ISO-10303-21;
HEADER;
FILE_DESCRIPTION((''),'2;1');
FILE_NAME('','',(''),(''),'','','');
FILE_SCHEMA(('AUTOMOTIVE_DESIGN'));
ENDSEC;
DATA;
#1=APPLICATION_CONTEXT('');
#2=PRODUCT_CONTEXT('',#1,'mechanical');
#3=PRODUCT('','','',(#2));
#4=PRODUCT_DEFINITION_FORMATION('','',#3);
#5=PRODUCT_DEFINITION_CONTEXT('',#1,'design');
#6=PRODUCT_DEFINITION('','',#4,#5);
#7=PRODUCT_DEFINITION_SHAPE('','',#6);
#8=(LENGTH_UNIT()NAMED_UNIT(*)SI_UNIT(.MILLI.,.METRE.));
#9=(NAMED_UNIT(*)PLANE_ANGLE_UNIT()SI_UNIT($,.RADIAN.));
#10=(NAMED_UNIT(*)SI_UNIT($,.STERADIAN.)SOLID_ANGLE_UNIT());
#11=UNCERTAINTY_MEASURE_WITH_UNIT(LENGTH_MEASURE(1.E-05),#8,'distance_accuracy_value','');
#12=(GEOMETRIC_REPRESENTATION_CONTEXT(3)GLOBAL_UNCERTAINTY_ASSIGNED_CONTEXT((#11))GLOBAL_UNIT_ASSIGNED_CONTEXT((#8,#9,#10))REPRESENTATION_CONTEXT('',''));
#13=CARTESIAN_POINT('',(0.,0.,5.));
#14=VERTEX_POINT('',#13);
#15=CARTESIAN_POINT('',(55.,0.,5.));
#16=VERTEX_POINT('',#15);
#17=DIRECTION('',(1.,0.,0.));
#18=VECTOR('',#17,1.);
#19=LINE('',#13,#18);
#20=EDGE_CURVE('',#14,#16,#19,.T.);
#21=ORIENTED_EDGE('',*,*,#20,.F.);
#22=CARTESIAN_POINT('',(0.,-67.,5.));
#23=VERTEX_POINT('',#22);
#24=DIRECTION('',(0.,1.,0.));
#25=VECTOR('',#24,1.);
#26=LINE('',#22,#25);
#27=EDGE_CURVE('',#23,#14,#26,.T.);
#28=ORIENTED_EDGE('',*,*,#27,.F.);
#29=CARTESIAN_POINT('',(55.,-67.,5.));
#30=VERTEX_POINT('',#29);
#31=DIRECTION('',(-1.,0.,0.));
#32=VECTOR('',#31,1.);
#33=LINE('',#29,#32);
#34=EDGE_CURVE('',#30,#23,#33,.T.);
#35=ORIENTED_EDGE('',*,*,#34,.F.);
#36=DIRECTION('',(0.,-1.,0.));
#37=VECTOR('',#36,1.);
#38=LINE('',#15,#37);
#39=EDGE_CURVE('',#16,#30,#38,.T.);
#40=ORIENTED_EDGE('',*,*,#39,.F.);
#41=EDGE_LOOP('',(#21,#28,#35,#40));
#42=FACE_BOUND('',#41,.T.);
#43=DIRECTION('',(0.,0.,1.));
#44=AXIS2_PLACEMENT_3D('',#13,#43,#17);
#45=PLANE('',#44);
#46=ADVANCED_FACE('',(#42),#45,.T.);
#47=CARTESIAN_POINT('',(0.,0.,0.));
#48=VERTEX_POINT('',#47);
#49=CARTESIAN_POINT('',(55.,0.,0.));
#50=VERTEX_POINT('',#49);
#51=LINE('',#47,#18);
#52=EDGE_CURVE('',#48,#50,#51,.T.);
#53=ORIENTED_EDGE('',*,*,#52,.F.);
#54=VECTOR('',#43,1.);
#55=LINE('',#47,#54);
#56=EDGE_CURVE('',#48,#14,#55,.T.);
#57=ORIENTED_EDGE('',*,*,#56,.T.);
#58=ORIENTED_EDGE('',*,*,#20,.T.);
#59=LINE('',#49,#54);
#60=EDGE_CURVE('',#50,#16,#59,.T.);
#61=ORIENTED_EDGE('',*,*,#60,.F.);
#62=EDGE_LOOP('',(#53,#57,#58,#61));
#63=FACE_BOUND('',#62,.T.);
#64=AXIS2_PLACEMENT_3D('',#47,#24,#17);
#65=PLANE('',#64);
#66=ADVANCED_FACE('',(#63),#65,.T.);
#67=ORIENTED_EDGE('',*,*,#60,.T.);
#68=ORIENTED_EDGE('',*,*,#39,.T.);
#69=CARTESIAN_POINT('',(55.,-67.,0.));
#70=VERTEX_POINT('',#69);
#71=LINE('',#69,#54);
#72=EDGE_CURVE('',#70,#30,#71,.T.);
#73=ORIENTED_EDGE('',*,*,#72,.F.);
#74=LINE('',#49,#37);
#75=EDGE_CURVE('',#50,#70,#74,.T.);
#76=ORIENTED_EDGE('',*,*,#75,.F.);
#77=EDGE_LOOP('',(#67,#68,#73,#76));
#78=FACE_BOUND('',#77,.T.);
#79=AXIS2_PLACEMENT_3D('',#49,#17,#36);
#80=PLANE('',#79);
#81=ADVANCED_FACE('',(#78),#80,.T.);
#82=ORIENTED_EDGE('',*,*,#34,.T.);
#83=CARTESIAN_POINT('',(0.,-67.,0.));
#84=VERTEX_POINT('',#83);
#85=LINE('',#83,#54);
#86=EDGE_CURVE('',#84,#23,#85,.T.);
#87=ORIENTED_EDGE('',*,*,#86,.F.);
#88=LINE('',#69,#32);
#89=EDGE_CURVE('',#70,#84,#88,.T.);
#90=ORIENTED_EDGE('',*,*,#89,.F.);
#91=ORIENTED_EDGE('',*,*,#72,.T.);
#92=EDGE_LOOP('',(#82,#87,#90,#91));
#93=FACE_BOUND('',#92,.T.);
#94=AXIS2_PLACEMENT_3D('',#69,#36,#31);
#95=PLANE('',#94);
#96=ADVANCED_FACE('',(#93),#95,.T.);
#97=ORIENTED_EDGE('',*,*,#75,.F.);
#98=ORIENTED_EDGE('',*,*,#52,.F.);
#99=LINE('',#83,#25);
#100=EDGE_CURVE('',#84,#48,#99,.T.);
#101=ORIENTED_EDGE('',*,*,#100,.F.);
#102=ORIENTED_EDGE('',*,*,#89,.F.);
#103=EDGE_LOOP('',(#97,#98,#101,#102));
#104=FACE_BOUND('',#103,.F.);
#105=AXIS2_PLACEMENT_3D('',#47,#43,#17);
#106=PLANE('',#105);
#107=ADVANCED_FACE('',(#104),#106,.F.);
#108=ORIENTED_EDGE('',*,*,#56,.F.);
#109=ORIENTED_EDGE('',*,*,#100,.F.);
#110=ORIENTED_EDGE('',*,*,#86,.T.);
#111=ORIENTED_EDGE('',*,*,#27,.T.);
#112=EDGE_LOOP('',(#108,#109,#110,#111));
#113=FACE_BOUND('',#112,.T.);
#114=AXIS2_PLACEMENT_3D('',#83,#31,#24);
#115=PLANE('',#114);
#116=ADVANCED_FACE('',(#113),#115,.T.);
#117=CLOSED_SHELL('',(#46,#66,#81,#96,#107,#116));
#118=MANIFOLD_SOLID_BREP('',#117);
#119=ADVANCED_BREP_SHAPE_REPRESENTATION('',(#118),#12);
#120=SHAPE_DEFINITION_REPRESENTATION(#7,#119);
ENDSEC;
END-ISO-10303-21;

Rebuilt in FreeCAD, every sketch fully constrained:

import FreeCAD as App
import Part
import Sketcher
from FreeCAD import Vector

doc = App.newDocument("Part")
body = doc.addObject("PartDesign::Body", "Body")

# Sketch on XY plane
sketch1 = body.newObject("Sketcher::SketchObject", "Sketch")
sketch1.AttachmentSupport = (doc.getObject("XY_Plane"), [""])
sketch1.MapMode = "FlatFace"
sketch1.addGeometry([
    Part.LineSegment(Vector(55, 0, 0), Vector(0, 0, 0)),
    Part.LineSegment(Vector(0, 0, 0), Vector(0, -67, 0)),
    Part.LineSegment(Vector(0, -67, 0), Vector(55, -67, 0)),
    Part.LineSegment(Vector(55, -67, 0), Vector(55, 0, 0)),
], False)
sketch1.addConstraint([
    Sketcher.Constraint("Coincident", 0, 2, 1, 1),
    Sketcher.Constraint("Coincident", 1, 2, 2, 1),
    Sketcher.Constraint("Coincident", 2, 2, 3, 1),
    Sketcher.Constraint("Coincident", 3, 2, 0, 1),
    Sketcher.Constraint("Horizontal", 0),
    Sketcher.Constraint("Vertical", 1),
    Sketcher.Constraint("Horizontal", 2),
    Sketcher.Constraint("Vertical", 3),
    Sketcher.Constraint("Coincident", 0, 2, -1, 1),
    Sketcher.Constraint("DistanceX", 0, 2, 0, 1, 55.0),
    Sketcher.Constraint("DistanceY", 1, 2, 1, 1, 67.0),
])
pad1 = body.newObject("PartDesign::Pad", "Pad")
pad1.Profile = sketch1
pad1.Length = 5

doc.recompute()
